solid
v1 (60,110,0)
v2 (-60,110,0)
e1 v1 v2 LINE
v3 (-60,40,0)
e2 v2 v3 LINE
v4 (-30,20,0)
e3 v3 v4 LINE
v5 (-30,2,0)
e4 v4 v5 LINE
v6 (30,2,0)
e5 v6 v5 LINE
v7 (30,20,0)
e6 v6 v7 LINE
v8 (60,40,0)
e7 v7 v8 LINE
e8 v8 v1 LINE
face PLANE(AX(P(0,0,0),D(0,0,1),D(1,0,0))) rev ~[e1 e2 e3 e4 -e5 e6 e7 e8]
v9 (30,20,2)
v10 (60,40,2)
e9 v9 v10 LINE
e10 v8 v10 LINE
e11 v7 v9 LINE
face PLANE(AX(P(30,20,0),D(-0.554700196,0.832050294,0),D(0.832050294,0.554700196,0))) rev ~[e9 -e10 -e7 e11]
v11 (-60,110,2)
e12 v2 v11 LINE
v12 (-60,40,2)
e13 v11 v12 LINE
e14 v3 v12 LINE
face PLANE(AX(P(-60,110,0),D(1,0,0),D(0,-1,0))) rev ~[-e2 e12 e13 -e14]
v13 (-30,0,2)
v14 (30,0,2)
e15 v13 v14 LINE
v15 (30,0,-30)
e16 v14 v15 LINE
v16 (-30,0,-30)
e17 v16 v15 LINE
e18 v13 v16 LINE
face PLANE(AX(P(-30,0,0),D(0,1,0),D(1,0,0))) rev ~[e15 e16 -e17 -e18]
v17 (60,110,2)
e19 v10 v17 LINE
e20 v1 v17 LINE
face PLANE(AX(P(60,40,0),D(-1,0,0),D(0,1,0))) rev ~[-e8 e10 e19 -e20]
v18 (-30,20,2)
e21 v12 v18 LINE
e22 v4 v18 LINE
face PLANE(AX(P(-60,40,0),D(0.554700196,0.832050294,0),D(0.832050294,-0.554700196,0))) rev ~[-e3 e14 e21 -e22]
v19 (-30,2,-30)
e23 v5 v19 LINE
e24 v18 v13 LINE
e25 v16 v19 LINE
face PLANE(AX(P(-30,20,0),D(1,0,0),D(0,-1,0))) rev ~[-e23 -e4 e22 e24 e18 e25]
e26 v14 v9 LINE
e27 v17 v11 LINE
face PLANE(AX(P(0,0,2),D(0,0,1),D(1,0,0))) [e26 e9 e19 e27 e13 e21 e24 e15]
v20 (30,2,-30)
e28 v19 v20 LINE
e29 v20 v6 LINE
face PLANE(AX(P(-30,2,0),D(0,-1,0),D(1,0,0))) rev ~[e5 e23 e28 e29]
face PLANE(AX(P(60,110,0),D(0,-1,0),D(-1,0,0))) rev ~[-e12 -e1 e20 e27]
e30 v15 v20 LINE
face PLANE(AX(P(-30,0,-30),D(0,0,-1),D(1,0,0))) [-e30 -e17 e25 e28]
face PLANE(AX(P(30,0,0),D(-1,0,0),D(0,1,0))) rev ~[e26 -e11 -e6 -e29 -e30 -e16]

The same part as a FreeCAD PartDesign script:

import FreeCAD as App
import Part
import Sketcher

V = App.Vector

doc = App.newDocument("Part")
params = doc.addObject("Spreadsheet::Sheet", "Params")
for row, (alias, value) in enumerate([
    ("sketch1_width", "120 mm"),
    ("sketch1_width2", "60 mm"),
    ("sketch1_height", "70 mm"),
    ("sketch1_height2", "20 mm"),
    ("pad1_length", "2 mm"),
    ("sketch2_width", "60 mm"),
    ("sketch2_height", "30 mm"),
    ("pad2_length", "2 mm"),
], start=1):
    params.set(f"A{row}", alias)
    params.set(f"B{row}", "=" + value)
    params.setAlias(f"B{row}", alias)

body = doc.addObject("PartDesign::Body", "Body")

sketch1 = body.newObject("Sketcher::SketchObject", "Sketch")
sketch1.AttachmentSupport = (doc.getObject("XY_Plane"), [""])
sketch1.MapMode = "FlatFace"
sketch1.addGeometry([
    Part.LineSegment(V(30, 20, 0), V(60, 40, 0)),
    Part.LineSegment(V(60, 40, 0), V(60, 110, 0)),
    Part.LineSegment(V(60, 110, 0), V(-60, 110, 0)),
    Part.LineSegment(V(-60, 110, 0), V(-60, 40, 0)),
    Part.LineSegment(V(-60, 40, 0), V(-30, 20, 0)),
    Part.LineSegment(V(-30, 20, 0), V(-30, 0, 0)),
    Part.LineSegment(V(-30, 0, 0), V(30, 0, 0)),
    Part.LineSegment(V(30, 0, 0), V(30, 20, 0)),
], False)
sketch1.addConstraint([
    Sketcher.Constraint("Coincident", 0, 2, 1, 1),
    Sketcher.Constraint("Coincident", 1, 2, 2, 1),
    Sketcher.Constraint("Coincident", 2, 2, 3, 1),
    Sketcher.Constraint("Coincident", 3, 2, 4, 1),
    Sketcher.Constraint("Coincident", 4, 2, 5, 1),
    Sketcher.Constraint("Coincident", 5, 2, 6, 1),
    Sketcher.Constraint("Coincident", 6, 2, 7, 1),
    Sketcher.Constraint("Coincident", 7, 2, 0, 1),
    Sketcher.Constraint("Vertical", 1),
    Sketcher.Constraint("Horizontal", 2),
    Sketcher.Constraint("Vertical", 3),
    Sketcher.Constraint("Vertical", 5),
    Sketcher.Constraint("Horizontal", 6),
    Sketcher.Constraint("Vertical", 7),
    Sketcher.Constraint("Symmetric", 5, 2, 6, 2, -1, 1),
    Sketcher.Constraint("Symmetric", 0, 2, 3, 2, -2),
    Sketcher.Constraint("Horizontal", 4, 2, 7, 2),
    Sketcher.Constraint("DistanceX", 2, 2, 2, 1, 120.0),
    Sketcher.Constraint("DistanceX", 6, 1, 6, 2, 60.0),
    Sketcher.Constraint("DistanceY", 1, 1, 1, 2, 70.0),
    Sketcher.Constraint("DistanceY", 5, 2, 5, 1, 20.0),
    Sketcher.Constraint("DistanceY", 4, 2, 3, 2, 20.0),
])
sketch1.setExpression("Constraints[17]", "Params.sketch1_width")
sketch1.setExpression("Constraints[18]", "Params.sketch1_width2")
sketch1.setExpression("Constraints[19]", "Params.sketch1_height")
sketch1.setExpression("Constraints[20]", "Params.sketch1_height2")
pad1 = body.newObject("PartDesign::Pad", "Pad")
pad1.Profile = sketch1
pad1.setExpression("Length", "Params.pad1_length")

sketch2 = body.newObject("Sketcher::SketchObject", "Sketch001")
sketch2.AttachmentSupport = (doc.getObject("XZ_Plane"), [""])
sketch2.MapMode = "FlatFace"
sketch2.addGeometry([
    Part.LineSegment(V(30, -30, 0), V(30, 0, 0)),
    Part.LineSegment(V(30, 0, 0), V(-30, 0, 0)),
    Part.LineSegment(V(-30, 0, 0), V(-30, -30, 0)),
    Part.LineSegment(V(-30, -30, 0), V(30, -30, 0)),
], False)
sketch2.addConstraint([
    Sketcher.Constraint("Coincident", 0, 2, 1, 1),
    Sketcher.Constraint("Coincident", 1, 2, 2, 1),
    Sketcher.Constraint("Coincident", 2, 2, 3, 1),
    Sketcher.Constraint("Coincident", 3, 2, 0, 1),
    Sketcher.Constraint("Vertical", 0),
    Sketcher.Constraint("Horizontal", 1),
    Sketcher.Constraint("Vertical", 2),
    Sketcher.Constraint("Horizontal", 3),
    Sketcher.Constraint("Symmetric", 0, 2, 1, 2, -1, 1),
    Sketcher.Constraint("DistanceX", 1, 2, 1, 1, 60.0),
    Sketcher.Constraint("DistanceY", 0, 1, 0, 2, 30.0),
])
sketch2.setExpression("Constraints[9]", "Params.sketch2_width")
sketch2.setExpression("Constraints[10]", "Params.sketch2_height")
pad2 = body.newObject("PartDesign::Pad", "Pad001")
pad2.Profile = sketch2
pad2.setExpression("Length", "Params.pad2_length")
pad2.Reversed = True

doc.recompute()
